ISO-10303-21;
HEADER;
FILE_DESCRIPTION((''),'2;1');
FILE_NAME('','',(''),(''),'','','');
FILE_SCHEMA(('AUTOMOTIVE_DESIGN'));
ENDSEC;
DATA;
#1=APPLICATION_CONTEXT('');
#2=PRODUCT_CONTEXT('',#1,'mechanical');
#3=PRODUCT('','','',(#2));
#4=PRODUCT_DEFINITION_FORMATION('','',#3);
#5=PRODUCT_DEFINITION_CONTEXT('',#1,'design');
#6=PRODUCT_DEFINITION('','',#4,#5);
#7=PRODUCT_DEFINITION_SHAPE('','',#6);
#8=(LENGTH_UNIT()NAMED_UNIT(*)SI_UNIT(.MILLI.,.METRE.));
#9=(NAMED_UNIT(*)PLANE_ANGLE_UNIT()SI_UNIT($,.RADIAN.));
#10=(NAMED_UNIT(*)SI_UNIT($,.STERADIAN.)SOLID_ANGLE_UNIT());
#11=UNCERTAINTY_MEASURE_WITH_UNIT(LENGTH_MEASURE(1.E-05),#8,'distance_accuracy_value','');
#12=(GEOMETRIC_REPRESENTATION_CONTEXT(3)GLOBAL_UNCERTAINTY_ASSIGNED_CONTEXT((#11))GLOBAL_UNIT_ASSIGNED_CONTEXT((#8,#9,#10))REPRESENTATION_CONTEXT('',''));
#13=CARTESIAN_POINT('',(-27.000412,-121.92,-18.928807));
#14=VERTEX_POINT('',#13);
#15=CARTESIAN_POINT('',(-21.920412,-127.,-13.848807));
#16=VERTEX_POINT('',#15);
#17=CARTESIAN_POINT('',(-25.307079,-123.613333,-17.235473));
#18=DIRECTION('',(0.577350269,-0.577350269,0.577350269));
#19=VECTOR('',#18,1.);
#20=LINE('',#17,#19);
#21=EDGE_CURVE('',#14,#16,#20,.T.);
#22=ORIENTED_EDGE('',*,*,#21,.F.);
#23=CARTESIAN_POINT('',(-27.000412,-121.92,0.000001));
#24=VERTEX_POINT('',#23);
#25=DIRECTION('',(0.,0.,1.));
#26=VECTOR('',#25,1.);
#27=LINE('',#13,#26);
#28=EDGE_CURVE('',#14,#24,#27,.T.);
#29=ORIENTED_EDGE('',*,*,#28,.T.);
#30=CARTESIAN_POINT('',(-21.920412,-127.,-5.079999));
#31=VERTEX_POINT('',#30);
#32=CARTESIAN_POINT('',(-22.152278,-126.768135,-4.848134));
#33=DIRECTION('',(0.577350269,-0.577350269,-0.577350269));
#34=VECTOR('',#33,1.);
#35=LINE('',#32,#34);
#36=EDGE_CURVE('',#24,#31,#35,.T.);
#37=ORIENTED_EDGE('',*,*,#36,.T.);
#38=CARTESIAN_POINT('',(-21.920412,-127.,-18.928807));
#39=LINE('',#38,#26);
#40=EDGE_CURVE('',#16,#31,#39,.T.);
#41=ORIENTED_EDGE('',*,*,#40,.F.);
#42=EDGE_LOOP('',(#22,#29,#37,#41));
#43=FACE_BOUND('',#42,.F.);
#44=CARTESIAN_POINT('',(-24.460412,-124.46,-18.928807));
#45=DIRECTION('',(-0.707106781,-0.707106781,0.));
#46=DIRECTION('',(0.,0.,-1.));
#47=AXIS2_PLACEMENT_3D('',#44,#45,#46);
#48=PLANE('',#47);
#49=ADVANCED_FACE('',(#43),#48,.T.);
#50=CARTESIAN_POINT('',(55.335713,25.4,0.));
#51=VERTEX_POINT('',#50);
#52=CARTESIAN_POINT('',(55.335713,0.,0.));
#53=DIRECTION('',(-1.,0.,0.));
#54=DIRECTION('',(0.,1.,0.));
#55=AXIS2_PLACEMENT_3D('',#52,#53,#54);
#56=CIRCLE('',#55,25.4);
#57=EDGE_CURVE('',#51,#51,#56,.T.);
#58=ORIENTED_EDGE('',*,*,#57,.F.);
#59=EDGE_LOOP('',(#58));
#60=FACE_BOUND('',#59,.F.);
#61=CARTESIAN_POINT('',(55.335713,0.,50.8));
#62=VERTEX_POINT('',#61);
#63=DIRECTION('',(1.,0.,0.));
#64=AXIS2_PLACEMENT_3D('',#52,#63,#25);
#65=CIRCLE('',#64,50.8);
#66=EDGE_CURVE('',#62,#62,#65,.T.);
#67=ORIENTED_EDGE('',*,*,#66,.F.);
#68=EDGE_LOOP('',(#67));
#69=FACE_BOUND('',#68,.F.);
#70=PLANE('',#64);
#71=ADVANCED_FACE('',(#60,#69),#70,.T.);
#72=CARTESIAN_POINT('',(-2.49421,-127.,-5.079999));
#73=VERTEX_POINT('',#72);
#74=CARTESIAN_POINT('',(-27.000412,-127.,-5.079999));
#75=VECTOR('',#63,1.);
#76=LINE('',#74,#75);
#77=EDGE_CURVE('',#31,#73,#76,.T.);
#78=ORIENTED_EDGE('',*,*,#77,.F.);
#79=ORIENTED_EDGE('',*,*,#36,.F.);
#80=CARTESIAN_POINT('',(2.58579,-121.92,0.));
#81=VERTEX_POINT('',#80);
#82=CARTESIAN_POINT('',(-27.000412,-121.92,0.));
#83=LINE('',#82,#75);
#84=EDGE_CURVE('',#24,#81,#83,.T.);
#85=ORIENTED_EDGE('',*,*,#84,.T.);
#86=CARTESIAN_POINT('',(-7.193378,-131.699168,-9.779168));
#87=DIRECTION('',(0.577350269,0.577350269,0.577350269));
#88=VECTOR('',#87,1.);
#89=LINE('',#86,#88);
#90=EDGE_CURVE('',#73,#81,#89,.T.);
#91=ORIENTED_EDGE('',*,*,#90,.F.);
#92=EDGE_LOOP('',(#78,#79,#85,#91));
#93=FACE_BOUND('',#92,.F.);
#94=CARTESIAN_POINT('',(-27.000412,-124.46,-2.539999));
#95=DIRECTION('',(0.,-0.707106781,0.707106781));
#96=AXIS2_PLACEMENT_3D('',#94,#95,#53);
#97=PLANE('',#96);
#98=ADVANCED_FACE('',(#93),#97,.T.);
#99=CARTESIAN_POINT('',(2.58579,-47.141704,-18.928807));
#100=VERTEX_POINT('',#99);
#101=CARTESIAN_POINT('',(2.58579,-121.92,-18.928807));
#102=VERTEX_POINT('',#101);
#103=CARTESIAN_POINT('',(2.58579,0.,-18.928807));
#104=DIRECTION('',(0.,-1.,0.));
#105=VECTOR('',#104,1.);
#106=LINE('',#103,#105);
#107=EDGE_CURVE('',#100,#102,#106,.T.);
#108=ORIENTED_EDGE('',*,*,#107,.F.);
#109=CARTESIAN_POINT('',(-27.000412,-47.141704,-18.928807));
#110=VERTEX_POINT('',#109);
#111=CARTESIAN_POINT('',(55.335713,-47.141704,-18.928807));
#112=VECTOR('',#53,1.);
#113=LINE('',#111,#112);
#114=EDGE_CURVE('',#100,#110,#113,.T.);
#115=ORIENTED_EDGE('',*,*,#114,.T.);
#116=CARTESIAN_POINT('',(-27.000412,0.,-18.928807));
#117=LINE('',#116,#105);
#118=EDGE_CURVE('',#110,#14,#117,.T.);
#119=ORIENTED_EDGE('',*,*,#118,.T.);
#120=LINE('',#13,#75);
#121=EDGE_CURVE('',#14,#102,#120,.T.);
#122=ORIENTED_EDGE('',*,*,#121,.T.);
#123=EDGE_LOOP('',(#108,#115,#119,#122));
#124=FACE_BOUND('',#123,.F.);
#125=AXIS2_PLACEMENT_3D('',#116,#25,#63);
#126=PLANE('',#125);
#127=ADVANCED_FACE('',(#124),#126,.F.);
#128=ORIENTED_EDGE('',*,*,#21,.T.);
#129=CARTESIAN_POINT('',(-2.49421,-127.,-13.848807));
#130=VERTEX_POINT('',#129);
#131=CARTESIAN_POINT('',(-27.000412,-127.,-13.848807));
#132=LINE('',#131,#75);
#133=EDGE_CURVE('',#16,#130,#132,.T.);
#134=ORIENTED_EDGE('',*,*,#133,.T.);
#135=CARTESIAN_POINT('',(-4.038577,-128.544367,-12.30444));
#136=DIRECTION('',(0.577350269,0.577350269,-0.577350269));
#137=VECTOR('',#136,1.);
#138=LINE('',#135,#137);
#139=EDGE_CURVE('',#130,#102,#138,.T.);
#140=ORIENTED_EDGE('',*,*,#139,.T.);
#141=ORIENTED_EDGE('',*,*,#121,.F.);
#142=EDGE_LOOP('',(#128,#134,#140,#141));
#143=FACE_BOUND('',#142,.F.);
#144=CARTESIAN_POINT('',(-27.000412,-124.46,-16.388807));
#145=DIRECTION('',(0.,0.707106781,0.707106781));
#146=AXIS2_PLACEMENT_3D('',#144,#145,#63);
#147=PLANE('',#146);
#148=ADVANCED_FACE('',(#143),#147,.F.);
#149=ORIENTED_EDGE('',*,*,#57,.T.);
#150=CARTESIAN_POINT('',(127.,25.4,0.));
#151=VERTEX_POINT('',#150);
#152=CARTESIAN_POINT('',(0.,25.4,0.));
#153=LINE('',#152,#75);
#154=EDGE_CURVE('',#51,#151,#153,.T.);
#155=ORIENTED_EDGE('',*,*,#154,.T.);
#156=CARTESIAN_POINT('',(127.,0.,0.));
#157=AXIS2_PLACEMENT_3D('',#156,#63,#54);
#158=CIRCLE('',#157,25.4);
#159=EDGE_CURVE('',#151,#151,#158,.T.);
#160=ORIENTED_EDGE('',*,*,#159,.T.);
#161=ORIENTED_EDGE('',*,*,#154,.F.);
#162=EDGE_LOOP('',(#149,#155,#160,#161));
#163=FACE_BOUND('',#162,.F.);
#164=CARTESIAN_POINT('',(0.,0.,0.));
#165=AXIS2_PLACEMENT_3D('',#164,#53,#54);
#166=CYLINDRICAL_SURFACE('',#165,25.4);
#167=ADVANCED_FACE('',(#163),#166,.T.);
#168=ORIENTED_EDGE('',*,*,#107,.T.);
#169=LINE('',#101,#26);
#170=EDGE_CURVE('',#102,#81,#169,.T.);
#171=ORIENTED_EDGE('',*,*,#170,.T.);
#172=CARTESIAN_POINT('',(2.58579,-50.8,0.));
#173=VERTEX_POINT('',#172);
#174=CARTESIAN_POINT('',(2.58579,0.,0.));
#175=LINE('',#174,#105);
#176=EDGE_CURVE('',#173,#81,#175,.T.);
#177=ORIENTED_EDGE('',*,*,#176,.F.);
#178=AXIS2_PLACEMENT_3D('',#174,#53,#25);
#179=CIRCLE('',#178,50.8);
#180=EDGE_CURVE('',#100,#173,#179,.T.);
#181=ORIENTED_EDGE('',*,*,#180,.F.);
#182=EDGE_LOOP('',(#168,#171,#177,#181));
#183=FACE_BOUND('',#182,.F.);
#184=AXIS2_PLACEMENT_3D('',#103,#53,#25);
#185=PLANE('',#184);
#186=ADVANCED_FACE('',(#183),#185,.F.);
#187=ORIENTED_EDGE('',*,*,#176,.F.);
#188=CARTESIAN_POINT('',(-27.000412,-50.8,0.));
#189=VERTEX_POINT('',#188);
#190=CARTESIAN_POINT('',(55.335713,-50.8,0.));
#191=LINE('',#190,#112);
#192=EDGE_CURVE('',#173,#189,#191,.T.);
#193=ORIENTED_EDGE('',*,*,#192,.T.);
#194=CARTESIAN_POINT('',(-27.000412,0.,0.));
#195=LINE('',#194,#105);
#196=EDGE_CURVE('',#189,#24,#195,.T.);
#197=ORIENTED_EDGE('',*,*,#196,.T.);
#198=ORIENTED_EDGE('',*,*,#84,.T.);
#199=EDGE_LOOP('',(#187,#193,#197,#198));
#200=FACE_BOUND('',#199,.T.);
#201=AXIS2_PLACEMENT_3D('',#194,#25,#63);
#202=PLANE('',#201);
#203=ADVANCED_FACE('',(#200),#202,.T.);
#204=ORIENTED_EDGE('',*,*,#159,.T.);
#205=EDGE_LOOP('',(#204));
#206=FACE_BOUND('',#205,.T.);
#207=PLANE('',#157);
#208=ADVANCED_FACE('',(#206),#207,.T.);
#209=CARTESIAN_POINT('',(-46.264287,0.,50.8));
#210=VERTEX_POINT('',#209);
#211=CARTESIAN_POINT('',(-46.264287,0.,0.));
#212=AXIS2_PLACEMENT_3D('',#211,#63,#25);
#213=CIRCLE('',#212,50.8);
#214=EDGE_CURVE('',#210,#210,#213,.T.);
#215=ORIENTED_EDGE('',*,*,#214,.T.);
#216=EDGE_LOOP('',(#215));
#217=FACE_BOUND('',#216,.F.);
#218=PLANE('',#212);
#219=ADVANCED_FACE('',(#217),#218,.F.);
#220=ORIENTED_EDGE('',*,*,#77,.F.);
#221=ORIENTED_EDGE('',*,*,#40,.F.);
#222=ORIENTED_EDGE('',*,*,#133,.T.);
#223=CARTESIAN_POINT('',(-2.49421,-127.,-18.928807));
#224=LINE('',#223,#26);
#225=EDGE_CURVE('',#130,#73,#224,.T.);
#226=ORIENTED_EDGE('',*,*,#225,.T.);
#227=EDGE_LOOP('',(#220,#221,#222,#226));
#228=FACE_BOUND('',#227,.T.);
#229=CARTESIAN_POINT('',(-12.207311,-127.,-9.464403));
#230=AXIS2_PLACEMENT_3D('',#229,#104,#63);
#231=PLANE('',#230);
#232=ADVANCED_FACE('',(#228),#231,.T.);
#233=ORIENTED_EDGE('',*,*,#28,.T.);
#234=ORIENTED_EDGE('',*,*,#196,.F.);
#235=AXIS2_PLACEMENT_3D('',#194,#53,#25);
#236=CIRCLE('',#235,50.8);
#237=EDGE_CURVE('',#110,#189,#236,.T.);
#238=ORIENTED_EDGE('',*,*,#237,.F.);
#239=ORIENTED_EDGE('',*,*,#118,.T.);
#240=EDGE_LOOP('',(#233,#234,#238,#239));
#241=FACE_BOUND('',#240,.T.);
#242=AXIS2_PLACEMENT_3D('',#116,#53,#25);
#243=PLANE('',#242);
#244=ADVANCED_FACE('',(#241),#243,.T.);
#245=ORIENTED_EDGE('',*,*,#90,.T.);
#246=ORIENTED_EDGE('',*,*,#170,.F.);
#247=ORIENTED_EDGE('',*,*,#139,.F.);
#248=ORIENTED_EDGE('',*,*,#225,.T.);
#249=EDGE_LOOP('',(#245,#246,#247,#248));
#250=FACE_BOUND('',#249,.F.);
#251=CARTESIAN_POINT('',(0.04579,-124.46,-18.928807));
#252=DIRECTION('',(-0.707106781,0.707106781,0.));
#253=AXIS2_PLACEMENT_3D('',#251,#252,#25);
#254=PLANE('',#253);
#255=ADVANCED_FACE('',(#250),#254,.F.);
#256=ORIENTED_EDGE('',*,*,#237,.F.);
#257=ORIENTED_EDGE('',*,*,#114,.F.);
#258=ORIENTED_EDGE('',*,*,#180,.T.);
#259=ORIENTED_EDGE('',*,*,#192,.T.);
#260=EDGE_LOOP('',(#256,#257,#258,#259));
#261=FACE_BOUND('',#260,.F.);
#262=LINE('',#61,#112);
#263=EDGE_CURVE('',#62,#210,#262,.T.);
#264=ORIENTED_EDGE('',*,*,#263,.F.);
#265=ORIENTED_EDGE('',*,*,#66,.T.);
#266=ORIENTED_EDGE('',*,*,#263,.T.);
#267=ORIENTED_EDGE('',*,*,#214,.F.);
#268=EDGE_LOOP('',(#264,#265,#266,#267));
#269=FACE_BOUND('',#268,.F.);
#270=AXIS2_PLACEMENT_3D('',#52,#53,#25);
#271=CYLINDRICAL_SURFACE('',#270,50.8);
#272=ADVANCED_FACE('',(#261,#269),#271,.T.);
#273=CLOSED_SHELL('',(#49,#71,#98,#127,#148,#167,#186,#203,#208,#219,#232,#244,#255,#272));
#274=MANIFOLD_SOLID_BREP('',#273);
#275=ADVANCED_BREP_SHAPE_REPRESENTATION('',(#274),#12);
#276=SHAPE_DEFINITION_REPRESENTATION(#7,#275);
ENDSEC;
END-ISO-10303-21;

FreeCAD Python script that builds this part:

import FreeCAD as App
import Part
import Sketcher

V = App.Vector
Q = App.Units.Quantity


def edges_at(feature, points):
    """Names of the edges that pass closest to the given points."""
    edges = feature.Shape.Edges
    near = lambda p: min(range(len(edges)), key=lambda i: edges[i].distToShape(Part.Vertex(*p))[0])
    return sorted({f"Edge{near(p) + 1}" for p in points})


def add_polygon(sketch, points):
    """Adds a closed chain of lines whose ends are joined by coincident constraints."""
    first, n = sketch.GeometryCount, len(points)
    for a, b in zip(points, points[1:] + points[:1]):
        sketch.addGeometry(Part.LineSegment(App.Vector(*a, 0), App.Vector(*b, 0)), False)
    for i in range(n):
        sketch.addConstraint(Sketcher.Constraint("Coincident", first + i, 2, first + (i + 1) % n, 1))

doc = App.newDocument("Part")
body = doc.addObject("PartDesign::Body", "Body")

sketch1 = doc.addObject("Sketcher::SketchObject", "Sketch")
body.addObject(sketch1)
sketch1.AttachmentSupport = (doc.XZ_Plane, [""])
sketch1.MapMode = "FlatFace"
add_polygon(sketch1, [(55, 51), (-46, 51), (-46, 0), (55, 0)])
sketch1.addConstraint(Sketcher.Constraint("Horizontal", 0))
sketch1.addConstraint(Sketcher.Constraint("Vertical", 1))
sketch1.addConstraint(Sketcher.Constraint("Horizontal", 2))
sketch1.addConstraint(Sketcher.Constraint("Vertical", 3))
sketch1.addConstraint(Sketcher.Constraint("PointOnObject", 1, 2, -1))
sketch1.addConstraint(Sketcher.Constraint("DistanceX", 0, 2, 0, 1, Q("4 in")))
sketch1.addConstraint(Sketcher.Constraint("DistanceY", 1, 2, 1, 1, Q("2 in")))
sketch1.addConstraint(Sketcher.Constraint("DistanceX", 0, 2, -1, 1, Q("46.264287 mm")))
revolution = doc.addObject("PartDesign::Revolution", "Revolution")
body.addObject(revolution)
revolution.Profile = sketch1
revolution.ReferenceAxis = (sketch1, ["H_Axis"])
revolution.Angle = 360

sketch2 = doc.addObject("Sketcher::SketchObject", "Sketch001")
body.addObject(sketch2)
sketch2.AttachmentSupport = (doc.YZ_Plane, [""])
sketch2.MapMode = "FlatFace"
sketch2.addGeometry(Part.Circle(V(0, 0, 0), V(0, 0, 1), 25), False)
sketch2.addConstraint(Sketcher.Constraint("Coincident", 0, 3, -1, 1))
sketch2.addConstraint(Sketcher.Constraint("Diameter", 0, Q("2 in")))
pad1 = doc.addObject("PartDesign::Pad", "Pad")
body.addObject(pad1)
pad1.Profile = sketch2
pad1.Length = Q("5 in")

sketch3 = doc.addObject("Sketcher::SketchObject", "Sketch002")
body.addObject(sketch3)
sketch3.AttachmentSupport = (doc.XZ_Plane, [""])
sketch3.MapMode = "FlatFace"
add_polygon(sketch3, [(-27, 0), (-27, -19), (3, -19), (3, 0)])
sketch3.addConstraint(Sketcher.Constraint("Vertical", 0))
sketch3.addConstraint(Sketcher.Constraint("Horizontal", 1))
sketch3.addConstraint(Sketcher.Constraint("Vertical", 2))
sketch3.addConstraint(Sketcher.Constraint("Horizontal", 3))
sketch3.addConstraint(Sketcher.Constraint("PointOnObject", 2, 2, -1))
sketch3.addConstraint(Sketcher.Constraint("DistanceX", 1, 1, 1, 2, Q("29.586202 mm")))
sketch3.addConstraint(Sketcher.Constraint("DistanceY", 0, 2, 0, 1, Q("18.928807 mm")))
sketch3.addConstraint(Sketcher.Constraint("DistanceX", -1, 1, 1, 2, Q("2.58579 mm")))
pad2 = doc.addObject("PartDesign::Pad", "Pad001")
body.addObject(pad2)
pad2.Profile = sketch3
pad2.Length = Q("5 in")
doc.recompute()

chamfer = doc.addObject("PartDesign::Chamfer", "Chamfer")
body.addObject(chamfer)
chamfer.Base = (pad2, edges_at(pad2, [
    (2.586, -127, -9.464),
    (-12.207, -127, 0),
    (-27, -127, -9.464),
    (-12.207, -127, -18.929),
]))
chamfer.ChamferType = "Two distances"
chamfer.Size = Q("0.2 in")
chamfer.Size2 = Q("0.2 in")

doc.recompute()
